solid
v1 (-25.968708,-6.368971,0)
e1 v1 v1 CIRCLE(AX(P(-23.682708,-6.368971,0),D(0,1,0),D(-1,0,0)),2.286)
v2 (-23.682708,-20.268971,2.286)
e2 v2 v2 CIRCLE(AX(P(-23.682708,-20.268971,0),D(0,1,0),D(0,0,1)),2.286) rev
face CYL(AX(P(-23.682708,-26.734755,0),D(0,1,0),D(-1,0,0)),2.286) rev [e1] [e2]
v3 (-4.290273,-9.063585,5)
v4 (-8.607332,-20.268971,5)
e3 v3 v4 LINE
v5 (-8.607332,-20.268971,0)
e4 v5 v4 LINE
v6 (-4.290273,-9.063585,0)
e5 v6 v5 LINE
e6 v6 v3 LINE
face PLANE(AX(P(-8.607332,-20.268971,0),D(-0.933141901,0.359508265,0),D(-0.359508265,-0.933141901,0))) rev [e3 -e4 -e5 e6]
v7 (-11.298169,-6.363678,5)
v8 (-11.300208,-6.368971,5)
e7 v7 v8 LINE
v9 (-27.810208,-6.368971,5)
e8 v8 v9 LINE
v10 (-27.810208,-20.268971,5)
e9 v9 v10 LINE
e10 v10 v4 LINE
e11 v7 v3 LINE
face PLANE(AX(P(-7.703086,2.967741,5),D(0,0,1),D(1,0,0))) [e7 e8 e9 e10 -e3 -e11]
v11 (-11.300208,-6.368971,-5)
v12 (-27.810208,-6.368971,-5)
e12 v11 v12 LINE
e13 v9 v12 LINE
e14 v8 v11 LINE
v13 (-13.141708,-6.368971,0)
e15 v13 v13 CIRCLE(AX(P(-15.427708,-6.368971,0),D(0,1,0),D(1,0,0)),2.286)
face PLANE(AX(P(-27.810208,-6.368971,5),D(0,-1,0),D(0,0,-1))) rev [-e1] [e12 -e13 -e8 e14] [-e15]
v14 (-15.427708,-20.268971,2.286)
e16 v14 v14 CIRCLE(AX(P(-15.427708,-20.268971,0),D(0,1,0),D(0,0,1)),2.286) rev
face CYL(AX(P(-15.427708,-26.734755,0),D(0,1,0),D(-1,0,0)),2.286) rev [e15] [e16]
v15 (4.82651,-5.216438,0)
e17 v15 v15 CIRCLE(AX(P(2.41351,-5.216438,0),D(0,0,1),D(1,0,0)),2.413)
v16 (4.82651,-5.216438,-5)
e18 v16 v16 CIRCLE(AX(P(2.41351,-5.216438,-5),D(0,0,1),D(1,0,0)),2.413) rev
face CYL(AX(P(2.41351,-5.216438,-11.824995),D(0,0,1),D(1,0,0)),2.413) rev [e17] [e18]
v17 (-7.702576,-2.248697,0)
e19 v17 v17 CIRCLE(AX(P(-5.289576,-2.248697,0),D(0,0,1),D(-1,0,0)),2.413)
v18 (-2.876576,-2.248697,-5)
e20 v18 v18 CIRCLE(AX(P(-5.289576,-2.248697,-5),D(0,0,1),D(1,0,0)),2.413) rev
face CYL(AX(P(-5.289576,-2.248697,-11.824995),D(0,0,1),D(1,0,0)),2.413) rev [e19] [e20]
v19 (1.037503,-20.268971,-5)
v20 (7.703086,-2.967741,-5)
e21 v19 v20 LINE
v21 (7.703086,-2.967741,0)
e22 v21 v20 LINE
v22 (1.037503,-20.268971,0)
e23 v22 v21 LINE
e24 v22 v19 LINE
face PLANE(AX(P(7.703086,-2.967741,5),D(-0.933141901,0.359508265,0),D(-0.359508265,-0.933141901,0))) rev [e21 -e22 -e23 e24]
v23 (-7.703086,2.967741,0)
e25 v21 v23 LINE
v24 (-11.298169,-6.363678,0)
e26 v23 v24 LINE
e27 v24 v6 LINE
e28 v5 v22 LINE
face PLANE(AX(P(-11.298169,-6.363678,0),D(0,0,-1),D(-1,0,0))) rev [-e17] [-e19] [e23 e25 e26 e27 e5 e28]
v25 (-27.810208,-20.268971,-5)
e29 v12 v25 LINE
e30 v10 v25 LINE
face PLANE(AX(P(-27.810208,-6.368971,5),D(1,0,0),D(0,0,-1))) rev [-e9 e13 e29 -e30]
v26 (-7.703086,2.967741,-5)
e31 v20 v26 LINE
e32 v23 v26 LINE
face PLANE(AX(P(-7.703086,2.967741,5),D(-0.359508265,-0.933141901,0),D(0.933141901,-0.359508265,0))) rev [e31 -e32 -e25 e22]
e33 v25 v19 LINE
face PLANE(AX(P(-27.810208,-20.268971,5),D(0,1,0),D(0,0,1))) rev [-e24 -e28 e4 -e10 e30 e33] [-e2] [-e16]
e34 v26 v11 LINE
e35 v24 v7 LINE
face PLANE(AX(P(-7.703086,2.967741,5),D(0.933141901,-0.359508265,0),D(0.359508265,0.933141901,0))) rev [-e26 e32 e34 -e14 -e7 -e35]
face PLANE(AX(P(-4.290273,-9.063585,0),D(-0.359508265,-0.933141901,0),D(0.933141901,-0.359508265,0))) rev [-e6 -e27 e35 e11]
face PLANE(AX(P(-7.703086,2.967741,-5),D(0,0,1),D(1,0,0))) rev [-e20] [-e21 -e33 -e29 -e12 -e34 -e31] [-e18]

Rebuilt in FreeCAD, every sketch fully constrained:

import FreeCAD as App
import Part
import Sketcher
Q = App.Units.Quantity


def add_polygon(sketch, points):
    """Adds a closed chain of lines whose ends are joined by coincident constraints."""
    first, n = sketch.GeometryCount, len(points)
    for a, b in zip(points, points[1:] + points[:1]):
        sketch.addGeometry(Part.LineSegment(App.Vector(*a, 0), App.Vector(*b, 0)), False)
    for i in range(n):
        sketch.addConstraint(Sketcher.Constraint("Coincident", first + i, 2, first + (i + 1) % n, 1))

doc = App.newDocument("Part")
body = doc.addObject("PartDesign::Body", "Body")

# Sketch on XY plane
sketch1 = body.newObject("Sketcher::SketchObject", "Sketch")
sketch1.AttachmentSupport = (doc.getObject("XY_Plane"), [""])
sketch1.MapMode = "FlatFace"
add_polygon(sketch1, [(8, -3), (-8, 3), (-11, -6), (-28, -6), (-28, -20), (1, -20)])  # lines 0-5
sketch1.addConstraint([
    Sketcher.Constraint("Horizontal", 2),
    Sketcher.Constraint("Vertical", 3),
    Sketcher.Constraint("Horizontal", 4),
    Sketcher.Constraint("Symmetric", 0, 2, 5, 2, -1, 1),
    Sketcher.Constraint("Perpendicular", 0, 1),
    Sketcher.Constraint("Parallel", 1, 5),
    Sketcher.Constraint("DistanceY", 3, 2, 3, 1, 13.9),
    Sketcher.Constraint("DistanceX", 2, 2, 2, 1, 16.51),
    Sketcher.Constraint("Angle", 0, Q("158.93 deg")),
    Sketcher.Constraint("Distance", 0, 16.51),
    Sketcher.Constraint("Distance", 1, 10.005671),
])
pad1 = body.newObject("PartDesign::Pad", "Pad")
pad1.Profile = sketch1
pad1.Length = 10
pad1.Midplane = True

# Sketch on XY plane
sketch2 = body.newObject("Sketcher::SketchObject", "Sketch001")
sketch2.AttachmentSupport = (doc.getObject("XY_Plane"), [""])
sketch2.MapMode = "FlatFace"
sketch2.AttachmentOffset = App.Placement(App.Vector(0, 0, 5), App.Rotation())
add_polygon(sketch2, [(8, -3), (-8, 3), (-11, -6), (-4, -9), (-9, -20), (1, -20)])  # lines 0-5
sketch2.addConstraint([
    Sketcher.Constraint("Horizontal", 4),
    Sketcher.Constraint("Symmetric", 0, 2, 5, 2, -1, 1),
    Sketcher.Constraint("Perpendicular", 0, 1),
    Sketcher.Constraint("Perpendicular", 1, 2),
    Sketcher.Constraint("Perpendicular", 2, 3),
    Sketcher.Constraint("Parallel", 3, 5),
    Sketcher.Constraint("Distance", 1, 10.0),
    Sketcher.Constraint("Angle", 0, Q("158.93 deg")),
    Sketcher.Constraint("Distance", 0, 16.51),
    Sketcher.Constraint("Distance", 2, 7.51),
    Sketcher.Constraint("DistanceY", 3, 2, -1, 1, 20.268971),
])
pocket1 = body.newObject("PartDesign::Pocket", "Pocket")
pocket1.Profile = sketch2
pocket1.Length = 5

# Sketch on XY plane
sketch3 = body.newObject("Sketcher::SketchObject", "Sketch002")
sketch3.AttachmentSupport = (doc.getObject("XY_Plane"), [""])
sketch3.MapMode = "FlatFace"
sketch3.addGeometry([
    Part.Circle(App.Vector(2.4, -5.2, 0), App.Vector(0, 0, 1), 2.4),
    Part.Circle(App.Vector(-5.3, -2.2, 0), App.Vector(0, 0, 1), 2.4),
], False)
sketch3.addConstraint([
    Sketcher.Constraint("Equal", 0, 1),
    Sketcher.Constraint("Diameter", 0, 4.826),
    Sketcher.Constraint("DistanceX", -1, 1, 0, 3, 2.41351),
    Sketcher.Constraint("DistanceY", 0, 3, 1, 3, 2.967741),
    Sketcher.Constraint("DistanceY", 0, 3, -1, 1, 5.216438),
    Sketcher.Constraint("DistanceX", 1, 3, -1, 1, 5.289576),
])
pocket2 = body.newObject("PartDesign::Pocket", "Pocket001")
pocket2.Profile = sketch3
pocket2.Length = 5

# Sketch on XZ plane
sketch4 = body.newObject("Sketcher::SketchObject", "Sketch003")
sketch4.AttachmentSupport = (doc.getObject("XZ_Plane"), [""])
sketch4.MapMode = "FlatFace"
sketch4.AttachmentOffset = App.Placement(App.Vector(0, 0, 6.368971), App.Rotation())
sketch4.addGeometry(Part.Circle(App.Vector(-23.7, 0, 0), App.Vector(0, 0, 1), 2.3), False)
sketch4.addConstraint([
    Sketcher.Constraint("PointOnObject", 0, 3, -1),
    Sketcher.Constraint("Diameter", 0, 4.572),
    Sketcher.Constraint("DistanceX", 0, 3, -1, 1, 23.682708),
])
pocket3 = body.newObject("PartDesign::Pocket", "Pocket002")
pocket3.Profile = sketch4
pocket3.Type = "UpToFirst"
pocket3.Reversed = True

# Sketch on XZ plane
sketch5 = body.newObject("Sketcher::SketchObject", "Sketch004")
sketch5.AttachmentSupport = (doc.getObject("XZ_Plane"), [""])
sketch5.MapMode = "FlatFace"
sketch5.AttachmentOffset = App.Placement(App.Vector(0, 0, 6.368971), App.Rotation())
sketch5.addGeometry(Part.Circle(App.Vector(-15.4, 0, 0), App.Vector(0, 0, 1), 2.3), False)
sketch5.addConstraint([
    Sketcher.Constraint("PointOnObject", 0, 3, -1),
    Sketcher.Constraint("Diameter", 0, 4.572),
    Sketcher.Constraint("DistanceX", 0, 3, -1, 1, 15.427708),
])
pocket4 = body.newObject("PartDesign::Pocket", "Pocket003")
pocket4.Profile = sketch5
pocket4.Type = "UpToFirst"
pocket4.Reversed = True

doc.recompute()
